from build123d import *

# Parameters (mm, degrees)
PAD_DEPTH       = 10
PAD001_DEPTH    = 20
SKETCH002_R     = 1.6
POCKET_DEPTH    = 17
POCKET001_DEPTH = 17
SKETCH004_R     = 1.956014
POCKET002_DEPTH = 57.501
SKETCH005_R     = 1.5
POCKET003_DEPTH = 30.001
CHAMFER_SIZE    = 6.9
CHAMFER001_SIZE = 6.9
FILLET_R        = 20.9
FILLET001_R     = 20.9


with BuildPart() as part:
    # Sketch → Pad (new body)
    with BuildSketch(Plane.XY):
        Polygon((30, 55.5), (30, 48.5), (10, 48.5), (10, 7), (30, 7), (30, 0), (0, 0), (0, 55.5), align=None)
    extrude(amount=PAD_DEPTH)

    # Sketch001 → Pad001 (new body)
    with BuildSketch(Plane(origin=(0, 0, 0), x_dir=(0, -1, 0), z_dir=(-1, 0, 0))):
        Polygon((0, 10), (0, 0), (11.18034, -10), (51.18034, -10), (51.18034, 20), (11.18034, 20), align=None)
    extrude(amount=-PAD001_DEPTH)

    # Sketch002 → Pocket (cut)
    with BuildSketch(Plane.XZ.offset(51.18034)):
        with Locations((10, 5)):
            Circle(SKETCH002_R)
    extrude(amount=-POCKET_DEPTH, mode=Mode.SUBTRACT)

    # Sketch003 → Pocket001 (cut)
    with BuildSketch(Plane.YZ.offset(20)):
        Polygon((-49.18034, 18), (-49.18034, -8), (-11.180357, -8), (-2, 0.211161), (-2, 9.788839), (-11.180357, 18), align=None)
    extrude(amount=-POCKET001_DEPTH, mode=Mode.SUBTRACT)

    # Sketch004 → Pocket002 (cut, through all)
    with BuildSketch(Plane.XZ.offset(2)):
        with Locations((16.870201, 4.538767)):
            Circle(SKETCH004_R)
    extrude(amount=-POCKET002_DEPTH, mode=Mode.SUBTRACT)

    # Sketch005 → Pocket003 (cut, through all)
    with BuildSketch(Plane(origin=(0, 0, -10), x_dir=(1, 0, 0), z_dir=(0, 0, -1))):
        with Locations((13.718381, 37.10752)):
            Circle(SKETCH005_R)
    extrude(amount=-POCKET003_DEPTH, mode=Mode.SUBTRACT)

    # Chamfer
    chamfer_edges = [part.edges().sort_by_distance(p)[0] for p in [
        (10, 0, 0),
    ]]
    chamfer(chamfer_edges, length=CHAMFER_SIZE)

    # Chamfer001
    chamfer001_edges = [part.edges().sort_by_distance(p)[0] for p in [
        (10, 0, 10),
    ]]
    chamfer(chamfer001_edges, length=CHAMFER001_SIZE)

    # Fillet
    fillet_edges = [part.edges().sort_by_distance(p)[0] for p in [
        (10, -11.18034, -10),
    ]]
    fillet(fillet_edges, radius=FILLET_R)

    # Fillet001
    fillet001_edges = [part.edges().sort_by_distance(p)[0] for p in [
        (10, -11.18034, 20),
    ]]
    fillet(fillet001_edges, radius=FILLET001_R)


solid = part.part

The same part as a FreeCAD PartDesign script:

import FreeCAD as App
import Part
import Sketcher


def edges_at(feature, points):
    """Names of the edges that pass closest to the given points."""
    edges = feature.Shape.Edges
    near = lambda p: min(range(len(edges)), key=lambda i: edges[i].distToShape(Part.Vertex(*p))[0])
    return sorted({f"Edge{near(p) + 1}" for p in points})


def add_polygon(sketch, points):
    """Adds a closed chain of lines whose ends are joined by coincident constraints."""
    first, n = sketch.GeometryCount, len(points)
    for a, b in zip(points, points[1:] + points[:1]):
        sketch.addGeometry(Part.LineSegment(App.Vector(*a, 0), App.Vector(*b, 0)), False)
    for i in range(n):
        sketch.addConstraint(Sketcher.Constraint("Coincident", first + i, 2, first + (i + 1) % n, 1))

doc = App.newDocument("Part")
body = doc.addObject("PartDesign::Body", "Body")

# Sketch on XY plane
sketch1 = body.newObject("Sketcher::SketchObject", "Sketch")
sketch1.AttachmentSupport = (doc.getObject("XY_Plane"), [""])
sketch1.MapMode = "FlatFace"
add_polygon(sketch1, [(30, 48.5), (30, 55.5), (0, 55.5), (0, 0), (30, 0), (30, 7), (10, 7), (10, 48.5)])  # lines 0-7
sketch1.addConstraint(Sketcher.Constraint("Vertical", 0))
sketch1.addConstraint(Sketcher.Constraint("Horizontal", 1))
sketch1.addConstraint(Sketcher.Constraint("Vertical", 2))
sketch1.addConstraint(Sketcher.Constraint("Horizontal", 3))
sketch1.addConstraint(Sketcher.Constraint("Vertical", 4))
sketch1.addConstraint(Sketcher.Constraint("Horizontal", 5))
sketch1.addConstraint(Sketcher.Constraint("Vertical", 6))
sketch1.addConstraint(Sketcher.Constraint("Horizontal", 7))
sketch1.addConstraint(Sketcher.Constraint("Coincident", 2, 2, -1, 1))
sketch1.addConstraint(Sketcher.Constraint("Vertical", 0, 2, 3, 2))
sketch1.addConstraint(Sketcher.Constraint("Equal", 0, 4))
sketch1.addConstraint(Sketcher.Constraint("DistanceX", 1, 2, 1, 1, 30.0))
sketch1.addConstraint(Sketcher.Constraint("DistanceX", 5, 2, 5, 1, 20.0))
sketch1.addConstraint(Sketcher.Constraint("DistanceY", 0, 1, 0, 2, 7.0))
sketch1.addConstraint(Sketcher.Constraint("DistanceY", 2, 2, 2, 1, 55.5))
pad1 = body.newObject("PartDesign::Pad", "Pad")
pad1.Profile = sketch1
pad1.Length = 10

# Sketch on YZ plane
sketch2 = body.newObject("Sketcher::SketchObject", "Sketch001")
sketch2.AttachmentSupport = (doc.getObject("YZ_Plane"), [""])
sketch2.MapMode = "FlatFace"
add_polygon(sketch2, [(0, 10), (0, 0), (-11.18034, -10), (-51.18034, -10), (-51.18034, 20), (-11.18034, 20)])  # lines 0-5
sketch2.addConstraint(Sketcher.Constraint("Vertical", 0))
sketch2.addConstraint(Sketcher.Constraint("Horizontal", 2))
sketch2.addConstraint(Sketcher.Constraint("Vertical", 3))
sketch2.addConstraint(Sketcher.Constraint("Horizontal", 4))
sketch2.addConstraint(Sketcher.Constraint("Coincident", 0, 2, -1, 1))
sketch2.addConstraint(Sketcher.Constraint("Vertical", 1, 2, 4, 2))
sketch2.addConstraint(Sketcher.Constraint("Equal", 1, 5))
sketch2.addConstraint(Sketcher.Constraint("DistanceX", 2, 2, 2, 1, 40.0))
sketch2.addConstraint(Sketcher.Constraint("DistanceY", 0, 2, 0, 1, 10.0))
sketch2.addConstraint(Sketcher.Constraint("DistanceY", 3, 1, 3, 2, 30.0))
sketch2.addConstraint(Sketcher.Constraint("Distance", 1, 15.0))
pad2 = body.newObject("PartDesign::Pad", "Pad001")
pad2.Profile = sketch2
pad2.Length = 20

# Sketch on XZ plane
sketch3 = body.newObject("Sketcher::SketchObject", "Sketch002")
sketch3.AttachmentSupport = (doc.getObject("XZ_Plane"), [""])
sketch3.MapMode = "FlatFace"
sketch3.AttachmentOffset = App.Placement(App.Vector(0, 0, 51.18034), App.Rotation())
sketch3.addGeometry(Part.Circle(App.Vector(10, 5, 0), App.Vector(0, 0, 1), 1.6), False)
sketch3.addConstraint(Sketcher.Constraint("Diameter", 0, 3.2))
sketch3.addConstraint(Sketcher.Constraint("DistanceX", -1, 1, 0, 3, 10.0))
sketch3.addConstraint(Sketcher.Constraint("DistanceY", -1, 1, 0, 3, 5.0))
pocket1 = body.newObject("PartDesign::Pocket", "Pocket")
pocket1.Profile = sketch3
pocket1.Length = 17

# Sketch on YZ plane
sketch4 = body.newObject("Sketcher::SketchObject", "Sketch003")
sketch4.AttachmentSupport = (doc.getObject("YZ_Plane"), [""])
sketch4.MapMode = "FlatFace"
sketch4.AttachmentOffset = App.Placement(App.Vector(0, 0, 20), App.Rotation())
add_polygon(sketch4, [(-49.18034, 18), (-49.18034, -8), (-11.180357, -8), (-2, 0.211161), (-2, 9.788839), (-11.180357, 18)])  # lines 0-5
sketch4.addConstraint(Sketcher.Constraint("Vertical", 0))
sketch4.addConstraint(Sketcher.Constraint("Horizontal", 1))
sketch4.addConstraint(Sketcher.Constraint("Vertical", 3))
sketch4.addConstraint(Sketcher.Constraint("Horizontal", 5))
sketch4.addConstraint(Sketcher.Constraint("Vertical", 1, 2, 4, 2))
sketch4.addConstraint(Sketcher.Constraint("Equal", 2, 4))
sketch4.addConstraint(Sketcher.Constraint("DistanceY", 0, 2, 0, 1, 26.0))
sketch4.addConstraint(Sketcher.Constraint("DistanceY", 0, 2, -1, 1, 8.0))
sketch4.addConstraint(Sketcher.Constraint("DistanceX", 2, 2, -1, 1, 2.0))
sketch4.addConstraint(Sketcher.Constraint("Distance", 2, 12.316741))
sketch4.addConstraint(Sketcher.Constraint("DistanceX", 1, 1, 1, 2, 37.999983))
sketch4.addConstraint(Sketcher.Constraint("DistanceY", 3, 1, 3, 2, 9.577678))
pocket2 = body.newObject("PartDesign::Pocket", "Pocket001")
pocket2.Profile = sketch4
pocket2.Length = 17

# Sketch on XZ plane
sketch5 = body.newObject("Sketcher::SketchObject", "Sketch004")
sketch5.AttachmentSupport = (doc.getObject("XZ_Plane"), [""])
sketch5.MapMode = "FlatFace"
sketch5.AttachmentOffset = App.Placement(App.Vector(0, 0, 2), App.Rotation())
sketch5.addGeometry(Part.Circle(App.Vector(16.870201, 4.538767, 0), App.Vector(0, 0, 1), 1.956014), False)
sketch5.addConstraint(Sketcher.Constraint("Diameter", 0, 3.912028))
sketch5.addConstraint(Sketcher.Constraint("DistanceX", -1, 1, 0, 3, 16.870201))
sketch5.addConstraint(Sketcher.Constraint("DistanceY", -1, 1, 0, 3, 4.538767))
pocket3 = body.newObject("PartDesign::Pocket", "Pocket002")
pocket3.Profile = sketch5
pocket3.Type = "ThroughAll"

# Sketch on XY plane
sketch6 = body.newObject("Sketcher::SketchObject", "Sketch005")
sketch6.AttachmentSupport = (doc.getObject("XY_Plane"), [""])
sketch6.MapMode = "FlatFace"
sketch6.AttachmentOffset = App.Placement(App.Vector(0, 0, -10), App.Rotation())
sketch6.addGeometry(Part.Circle(App.Vector(13.718381, -37.10752, 0), App.Vector(0, 0, 1), 1.5), False)
sketch6.addConstraint(Sketcher.Constraint("Diameter", 0, 3.0))
sketch6.addConstraint(Sketcher.Constraint("DistanceX", -1, 1, 0, 3, 13.718381))
sketch6.addConstraint(Sketcher.Constraint("DistanceY", 0, 3, -1, 1, 37.10752))
pocket4 = body.newObject("PartDesign::Pocket", "Pocket003")
pocket4.Profile = sketch6
pocket4.Type = "ThroughAll"
pocket4.Reversed = True
doc.recompute()

chamfer = body.newObject("PartDesign::Chamfer", "Chamfer")
chamfer.Base = (pocket4, edges_at(pocket4, [(10, 0, 0)]))
chamfer.Size = 6.9
doc.recompute()

chamfer2 = body.newObject("PartDesign::Chamfer", "Chamfer001")
chamfer2.Base = (chamfer, edges_at(chamfer, [(10, 0, 10)]))
chamfer2.Size = 6.9
doc.recompute()

fillet = body.newObject("PartDesign::Fillet", "Fillet")
fillet.Base = (chamfer2, edges_at(chamfer2, [(10, -11.18, -10)]))
fillet.Radius = 20.9
doc.recompute()

fillet2 = body.newObject("PartDesign::Fillet", "Fillet001")
fillet2.Base = (fillet, edges_at(fillet, [(10, -11.18, 20)]))
fillet2.Radius = 20.9

doc.recompute()
